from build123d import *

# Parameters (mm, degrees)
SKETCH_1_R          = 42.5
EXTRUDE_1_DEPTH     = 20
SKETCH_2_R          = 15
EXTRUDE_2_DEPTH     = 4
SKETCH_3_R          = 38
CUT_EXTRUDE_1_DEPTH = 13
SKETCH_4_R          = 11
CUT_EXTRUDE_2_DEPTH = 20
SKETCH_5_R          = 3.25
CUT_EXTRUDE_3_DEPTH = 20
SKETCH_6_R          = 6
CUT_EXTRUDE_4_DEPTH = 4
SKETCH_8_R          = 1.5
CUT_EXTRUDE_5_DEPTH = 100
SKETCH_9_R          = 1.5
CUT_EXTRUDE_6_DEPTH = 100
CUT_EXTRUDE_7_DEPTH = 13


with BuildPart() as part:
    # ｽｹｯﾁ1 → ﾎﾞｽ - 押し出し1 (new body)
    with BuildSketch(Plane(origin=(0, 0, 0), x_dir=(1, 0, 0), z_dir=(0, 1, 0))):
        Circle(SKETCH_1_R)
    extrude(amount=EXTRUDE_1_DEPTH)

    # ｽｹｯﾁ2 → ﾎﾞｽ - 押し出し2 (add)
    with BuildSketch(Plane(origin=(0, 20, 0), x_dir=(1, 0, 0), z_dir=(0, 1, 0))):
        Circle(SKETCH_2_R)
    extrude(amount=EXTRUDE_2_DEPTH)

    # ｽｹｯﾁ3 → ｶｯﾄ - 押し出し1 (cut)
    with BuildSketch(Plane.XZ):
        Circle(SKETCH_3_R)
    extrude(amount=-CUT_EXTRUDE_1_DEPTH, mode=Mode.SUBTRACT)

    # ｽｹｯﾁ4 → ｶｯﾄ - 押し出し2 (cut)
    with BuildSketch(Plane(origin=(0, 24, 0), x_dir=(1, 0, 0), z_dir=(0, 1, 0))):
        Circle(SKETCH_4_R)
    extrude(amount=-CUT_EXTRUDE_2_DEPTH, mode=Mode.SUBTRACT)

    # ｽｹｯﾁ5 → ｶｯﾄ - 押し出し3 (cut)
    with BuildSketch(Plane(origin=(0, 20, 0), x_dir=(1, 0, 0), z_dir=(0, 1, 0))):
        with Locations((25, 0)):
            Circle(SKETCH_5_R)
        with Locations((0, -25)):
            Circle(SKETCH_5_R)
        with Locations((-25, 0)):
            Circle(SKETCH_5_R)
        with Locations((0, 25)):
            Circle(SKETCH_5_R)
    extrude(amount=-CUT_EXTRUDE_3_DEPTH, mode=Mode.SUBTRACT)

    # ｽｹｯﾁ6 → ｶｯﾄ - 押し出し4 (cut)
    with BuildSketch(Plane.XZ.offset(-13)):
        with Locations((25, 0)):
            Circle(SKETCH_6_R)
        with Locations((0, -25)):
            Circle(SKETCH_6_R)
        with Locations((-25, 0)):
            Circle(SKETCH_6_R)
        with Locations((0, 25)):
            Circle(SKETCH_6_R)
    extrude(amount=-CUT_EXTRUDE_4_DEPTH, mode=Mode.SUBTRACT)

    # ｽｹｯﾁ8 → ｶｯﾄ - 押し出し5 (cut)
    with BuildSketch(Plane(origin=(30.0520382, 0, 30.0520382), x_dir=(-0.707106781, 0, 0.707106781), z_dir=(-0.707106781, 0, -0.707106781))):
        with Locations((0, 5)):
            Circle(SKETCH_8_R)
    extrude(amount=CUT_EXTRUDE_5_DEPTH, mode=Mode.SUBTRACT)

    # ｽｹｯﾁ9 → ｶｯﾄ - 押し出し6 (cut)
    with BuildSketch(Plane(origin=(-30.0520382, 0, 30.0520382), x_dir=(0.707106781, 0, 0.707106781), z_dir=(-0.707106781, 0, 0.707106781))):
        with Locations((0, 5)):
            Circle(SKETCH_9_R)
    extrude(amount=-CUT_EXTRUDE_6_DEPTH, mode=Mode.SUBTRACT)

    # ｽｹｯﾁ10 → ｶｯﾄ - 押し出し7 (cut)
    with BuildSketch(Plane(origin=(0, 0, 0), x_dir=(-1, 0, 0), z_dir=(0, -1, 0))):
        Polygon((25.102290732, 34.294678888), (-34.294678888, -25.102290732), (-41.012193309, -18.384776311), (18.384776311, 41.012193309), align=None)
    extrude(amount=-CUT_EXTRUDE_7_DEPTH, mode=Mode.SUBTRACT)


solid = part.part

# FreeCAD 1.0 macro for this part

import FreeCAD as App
import Part
import Sketcher

V = App.Vector
Q = App.Units.Quantity


def add_polygon(sketch, points):
    """Adds a closed chain of lines whose ends are joined by coincident constraints."""
    first, n = sketch.GeometryCount, len(points)
    for a, b in zip(points, points[1:] + points[:1]):
        sketch.addGeometry(Part.LineSegment(App.Vector(*a, 0), App.Vector(*b, 0)), False)
    for i in range(n):
        sketch.addConstraint(Sketcher.Constraint("Coincident", first + i, 2, first + (i + 1) % n, 1))

doc = App.newDocument("Part")
body = doc.addObject("PartDesign::Body", "Body")

# Sketch on XZ plane
sketch1 = doc.addObject("Sketcher::SketchObject", "Sketch")
body.addObject(sketch1)
sketch1.AttachmentSupport = (doc.XZ_Plane, [""])
sketch1.MapMode = "FlatFace"
sketch1.addGeometry(Part.Circle(V(0, 0, 0), V(0, 0, 1), 42), False)
sketch1.addConstraint([
    Sketcher.Constraint("Coincident", 0, 3, -1, 1),
    Sketcher.Constraint("Diameter", 0, Q("85 mm")),
])
pad1 = doc.addObject("PartDesign::Pad", "Pad")
body.addObject(pad1)
pad1.Profile = sketch1
pad1.Length = 20
pad1.Reversed = True

# Sketch on XZ plane
sketch2 = doc.addObject("Sketcher::SketchObject", "Sketch001")
body.addObject(sketch2)
sketch2.AttachmentSupport = (doc.XZ_Plane, [""])
sketch2.MapMode = "FlatFace"
sketch2.AttachmentOffset = App.Placement(V(0, 0, -20), App.Rotation())
sketch2.addGeometry(Part.Circle(V(0, 0, 0), V(0, 0, 1), 15), False)
sketch2.addConstraint([
    Sketcher.Constraint("Coincident", 0, 3, -1, 1),
    Sketcher.Constraint("Diameter", 0, Q("30 mm")),
])
pad2 = doc.addObject("PartDesign::Pad", "Pad001")
body.addObject(pad2)
pad2.Profile = sketch2
pad2.Length = 4
pad2.Reversed = True

# Sketch on XZ plane
sketch3 = doc.addObject("Sketcher::SketchObject", "Sketch002")
body.addObject(sketch3)
sketch3.AttachmentSupport = (doc.XZ_Plane, [""])
sketch3.MapMode = "FlatFace"
sketch3.addGeometry(Part.Circle(V(0, 0, 0), V(0, 0, 1), 38), False)
sketch3.addConstraint([
    Sketcher.Constraint("Coincident", 0, 3, -1, 1),
    Sketcher.Constraint("Diameter", 0, Q("76 mm")),
])
pocket1 = doc.addObject("PartDesign::Pocket", "Pocket")
body.addObject(pocket1)
pocket1.Profile = sketch3
pocket1.Length = 13

# Sketch on XZ plane
sketch4 = doc.addObject("Sketcher::SketchObject", "Sketch003")
body.addObject(sketch4)
sketch4.AttachmentSupport = (doc.XZ_Plane, [""])
sketch4.MapMode = "FlatFace"
sketch4.AttachmentOffset = App.Placement(V(0, 0, -24), App.Rotation())
sketch4.addGeometry(Part.Circle(V(0, 0, 0), V(0, 0, 1), 11), False)
sketch4.addConstraint([
    Sketcher.Constraint("Coincident", 0, 3, -1, 1),
    Sketcher.Constraint("Diameter", 0, Q("22 mm")),
])
pocket2 = doc.addObject("PartDesign::Pocket", "Pocket001")
body.addObject(pocket2)
pocket2.Profile = sketch4
pocket2.Length = 20
pocket2.Reversed = True

# Sketch on XZ plane
sketch5 = doc.addObject("Sketcher::SketchObject", "Sketch004")
body.addObject(sketch5)
sketch5.AttachmentSupport = (doc.XZ_Plane, [""])
sketch5.MapMode = "FlatFace"
sketch5.AttachmentOffset = App.Placement(V(0, 0, -20), App.Rotation())
sketch5.addGeometry([
    Part.Circle(V(25, 0, 0), V(0, 0, 1), 3.2),
    Part.Circle(V(0, 25, 0), V(0, 0, 1), 3.2),
    Part.Circle(V(-25, 0, 0), V(0, 0, 1), 3.2),
    Part.Circle(V(0, -25, 0), V(0, 0, 1), 3.2),
], False)
sketch5.addConstraint([
    Sketcher.Constraint("Equal", 0, 1),
    Sketcher.Constraint("Equal", 1, 2),
    Sketcher.Constraint("Equal", 2, 3),
    Sketcher.Constraint("Symmetric", 0, 3, 2, 3, -1, 1),
    Sketcher.Constraint("Symmetric", 1, 3, 3, 3, -1, 1),
    Sketcher.Constraint("PointOnObject", 0, 3, -1),
    Sketcher.Constraint("PointOnObject", 1, 3, -2),
    Sketcher.Constraint("Diameter", 0, Q("6.5 mm")),
    Sketcher.Constraint("DistanceX", -1, 1, 0, 3, Q("25 mm")),
    Sketcher.Constraint("DistanceY", -1, 1, 1, 3, Q("25 mm")),
])
pocket3 = doc.addObject("PartDesign::Pocket", "Pocket002")
body.addObject(pocket3)
pocket3.Profile = sketch5
pocket3.Length = 20
pocket3.Reversed = True

# Sketch on XZ plane
sketch6 = doc.addObject("Sketcher::SketchObject", "Sketch005")
body.addObject(sketch6)
sketch6.AttachmentSupport = (doc.XZ_Plane, [""])
sketch6.MapMode = "FlatFace"
sketch6.AttachmentOffset = App.Placement(V(0, 0, -13), App.Rotation())
sketch6.addGeometry([
    Part.Circle(V(25, 0, 0), V(0, 0, 1), 6),
    Part.Circle(V(0, -25, 0), V(0, 0, 1), 6),
    Part.Circle(V(-25, 0, 0), V(0, 0, 1), 6),
    Part.Circle(V(0, 25, 0), V(0, 0, 1), 6),
], False)
sketch6.addConstraint([
    Sketcher.Constraint("Equal", 0, 1),
    Sketcher.Constraint("Equal", 1, 2),
    Sketcher.Constraint("Equal", 2, 3),
    Sketcher.Constraint("Symmetric", 0, 3, 2, 3, -1, 1),
    Sketcher.Constraint("Symmetric", 1, 3, 3, 3, -1, 1),
    Sketcher.Constraint("PointOnObject", 0, 3, -1),
    Sketcher.Constraint("PointOnObject", 1, 3, -2),
    Sketcher.Constraint("Diameter", 0, Q("12 mm")),
    Sketcher.Constraint("DistanceX", -1, 1, 0, 3, Q("25 mm")),
    Sketcher.Constraint("DistanceY", 1, 3, -1, 1, Q("25 mm")),
])
pocket4 = doc.addObject("PartDesign::Pocket", "Pocket003")
body.addObject(pocket4)
pocket4.Profile = sketch6
pocket4.Length = 4

# Sketch on an angled plane
sketch7 = doc.addObject("Sketcher::SketchObject", "Sketch006")
body.addObject(sketch7)
sketch7.Placement = App.Placement(V(30.052038, 0, 30.052038), App.Rotation(V(-0.707106781, 0, 0.707106781), V(0, 0.999999999, 0), V(-0.707106781, 0, -0.707106781), "ZXY"))
sketch7.addGeometry(Part.Circle(V(0, 5, 0), V(0, 0, 1), 1.5), False)
sketch7.addConstraint([
    Sketcher.Constraint("PointOnObject", 0, 3, -2),
    Sketcher.Constraint("Diameter", 0, Q("3 mm")),
    Sketcher.Constraint("DistanceY", -1, 1, 0, 3, Q("5 mm")),
])
pocket5 = doc.addObject("PartDesign::Pocket", "Pocket004")
body.addObject(pocket5)
pocket5.Profile = sketch7
pocket5.Length = 100
pocket5.Reversed = True

# Sketch on an angled plane
sketch8 = doc.addObject("Sketcher::SketchObject", "Sketch007")
body.addObject(sketch8)
sketch8.Placement = App.Placement(V(-30.052038, 0, 30.052038), App.Rotation(V(0.707106781, 0, 0.707106781), V(0, 0.999999999, 0), V(-0.707106781, 0, 0.707106781), "ZXY"))
sketch8.addGeometry(Part.Circle(V(0, 5, 0), V(0, 0, 1), 1.5), False)
sketch8.addConstraint([
    Sketcher.Constraint("PointOnObject", 0, 3, -2),
    Sketcher.Constraint("Diameter", 0, Q("3 mm")),
    Sketcher.Constraint("DistanceY", -1, 1, 0, 3, Q("5 mm")),
])
pocket6 = doc.addObject("PartDesign::Pocket", "Pocket005")
body.addObject(pocket6)
pocket6.Profile = sketch8
pocket6.Length = 100

# Sketch on XZ plane
sketch9 = doc.addObject("Sketcher::SketchObject", "Sketch008")
body.addObject(sketch9)
sketch9.AttachmentSupport = (doc.XZ_Plane, [""])
sketch9.MapMode = "FlatFace"
add_polygon(sketch9, [(34, 25), (-25, -34), (-18, -41), (41, 18)])  # lines 0-3
sketch9.addConstraint([
    Sketcher.Constraint("Perpendicular", 0, 1),
    Sketcher.Constraint("Perpendicular", 1, 2),
    Sketcher.Constraint("Perpendicular", 2, 3),
    Sketcher.Constraint("Angle", 0, Q("-135 deg")),
    Sketcher.Constraint("Distance", 0, Q("84 mm")),
    Sketcher.Constraint("Distance", 1, Q("9.5 mm")),
    Sketcher.Constraint("DistanceX", 0, 2, -1, 1, Q("25.102291 mm")),
    Sketcher.Constraint("DistanceY", 0, 2, -1, 1, Q("34.294679 mm")),
])
pocket7 = doc.addObject("PartDesign::Pocket", "Pocket006")
body.addObject(pocket7)
pocket7.Profile = sketch9
pocket7.Length = 13

doc.recompute()
